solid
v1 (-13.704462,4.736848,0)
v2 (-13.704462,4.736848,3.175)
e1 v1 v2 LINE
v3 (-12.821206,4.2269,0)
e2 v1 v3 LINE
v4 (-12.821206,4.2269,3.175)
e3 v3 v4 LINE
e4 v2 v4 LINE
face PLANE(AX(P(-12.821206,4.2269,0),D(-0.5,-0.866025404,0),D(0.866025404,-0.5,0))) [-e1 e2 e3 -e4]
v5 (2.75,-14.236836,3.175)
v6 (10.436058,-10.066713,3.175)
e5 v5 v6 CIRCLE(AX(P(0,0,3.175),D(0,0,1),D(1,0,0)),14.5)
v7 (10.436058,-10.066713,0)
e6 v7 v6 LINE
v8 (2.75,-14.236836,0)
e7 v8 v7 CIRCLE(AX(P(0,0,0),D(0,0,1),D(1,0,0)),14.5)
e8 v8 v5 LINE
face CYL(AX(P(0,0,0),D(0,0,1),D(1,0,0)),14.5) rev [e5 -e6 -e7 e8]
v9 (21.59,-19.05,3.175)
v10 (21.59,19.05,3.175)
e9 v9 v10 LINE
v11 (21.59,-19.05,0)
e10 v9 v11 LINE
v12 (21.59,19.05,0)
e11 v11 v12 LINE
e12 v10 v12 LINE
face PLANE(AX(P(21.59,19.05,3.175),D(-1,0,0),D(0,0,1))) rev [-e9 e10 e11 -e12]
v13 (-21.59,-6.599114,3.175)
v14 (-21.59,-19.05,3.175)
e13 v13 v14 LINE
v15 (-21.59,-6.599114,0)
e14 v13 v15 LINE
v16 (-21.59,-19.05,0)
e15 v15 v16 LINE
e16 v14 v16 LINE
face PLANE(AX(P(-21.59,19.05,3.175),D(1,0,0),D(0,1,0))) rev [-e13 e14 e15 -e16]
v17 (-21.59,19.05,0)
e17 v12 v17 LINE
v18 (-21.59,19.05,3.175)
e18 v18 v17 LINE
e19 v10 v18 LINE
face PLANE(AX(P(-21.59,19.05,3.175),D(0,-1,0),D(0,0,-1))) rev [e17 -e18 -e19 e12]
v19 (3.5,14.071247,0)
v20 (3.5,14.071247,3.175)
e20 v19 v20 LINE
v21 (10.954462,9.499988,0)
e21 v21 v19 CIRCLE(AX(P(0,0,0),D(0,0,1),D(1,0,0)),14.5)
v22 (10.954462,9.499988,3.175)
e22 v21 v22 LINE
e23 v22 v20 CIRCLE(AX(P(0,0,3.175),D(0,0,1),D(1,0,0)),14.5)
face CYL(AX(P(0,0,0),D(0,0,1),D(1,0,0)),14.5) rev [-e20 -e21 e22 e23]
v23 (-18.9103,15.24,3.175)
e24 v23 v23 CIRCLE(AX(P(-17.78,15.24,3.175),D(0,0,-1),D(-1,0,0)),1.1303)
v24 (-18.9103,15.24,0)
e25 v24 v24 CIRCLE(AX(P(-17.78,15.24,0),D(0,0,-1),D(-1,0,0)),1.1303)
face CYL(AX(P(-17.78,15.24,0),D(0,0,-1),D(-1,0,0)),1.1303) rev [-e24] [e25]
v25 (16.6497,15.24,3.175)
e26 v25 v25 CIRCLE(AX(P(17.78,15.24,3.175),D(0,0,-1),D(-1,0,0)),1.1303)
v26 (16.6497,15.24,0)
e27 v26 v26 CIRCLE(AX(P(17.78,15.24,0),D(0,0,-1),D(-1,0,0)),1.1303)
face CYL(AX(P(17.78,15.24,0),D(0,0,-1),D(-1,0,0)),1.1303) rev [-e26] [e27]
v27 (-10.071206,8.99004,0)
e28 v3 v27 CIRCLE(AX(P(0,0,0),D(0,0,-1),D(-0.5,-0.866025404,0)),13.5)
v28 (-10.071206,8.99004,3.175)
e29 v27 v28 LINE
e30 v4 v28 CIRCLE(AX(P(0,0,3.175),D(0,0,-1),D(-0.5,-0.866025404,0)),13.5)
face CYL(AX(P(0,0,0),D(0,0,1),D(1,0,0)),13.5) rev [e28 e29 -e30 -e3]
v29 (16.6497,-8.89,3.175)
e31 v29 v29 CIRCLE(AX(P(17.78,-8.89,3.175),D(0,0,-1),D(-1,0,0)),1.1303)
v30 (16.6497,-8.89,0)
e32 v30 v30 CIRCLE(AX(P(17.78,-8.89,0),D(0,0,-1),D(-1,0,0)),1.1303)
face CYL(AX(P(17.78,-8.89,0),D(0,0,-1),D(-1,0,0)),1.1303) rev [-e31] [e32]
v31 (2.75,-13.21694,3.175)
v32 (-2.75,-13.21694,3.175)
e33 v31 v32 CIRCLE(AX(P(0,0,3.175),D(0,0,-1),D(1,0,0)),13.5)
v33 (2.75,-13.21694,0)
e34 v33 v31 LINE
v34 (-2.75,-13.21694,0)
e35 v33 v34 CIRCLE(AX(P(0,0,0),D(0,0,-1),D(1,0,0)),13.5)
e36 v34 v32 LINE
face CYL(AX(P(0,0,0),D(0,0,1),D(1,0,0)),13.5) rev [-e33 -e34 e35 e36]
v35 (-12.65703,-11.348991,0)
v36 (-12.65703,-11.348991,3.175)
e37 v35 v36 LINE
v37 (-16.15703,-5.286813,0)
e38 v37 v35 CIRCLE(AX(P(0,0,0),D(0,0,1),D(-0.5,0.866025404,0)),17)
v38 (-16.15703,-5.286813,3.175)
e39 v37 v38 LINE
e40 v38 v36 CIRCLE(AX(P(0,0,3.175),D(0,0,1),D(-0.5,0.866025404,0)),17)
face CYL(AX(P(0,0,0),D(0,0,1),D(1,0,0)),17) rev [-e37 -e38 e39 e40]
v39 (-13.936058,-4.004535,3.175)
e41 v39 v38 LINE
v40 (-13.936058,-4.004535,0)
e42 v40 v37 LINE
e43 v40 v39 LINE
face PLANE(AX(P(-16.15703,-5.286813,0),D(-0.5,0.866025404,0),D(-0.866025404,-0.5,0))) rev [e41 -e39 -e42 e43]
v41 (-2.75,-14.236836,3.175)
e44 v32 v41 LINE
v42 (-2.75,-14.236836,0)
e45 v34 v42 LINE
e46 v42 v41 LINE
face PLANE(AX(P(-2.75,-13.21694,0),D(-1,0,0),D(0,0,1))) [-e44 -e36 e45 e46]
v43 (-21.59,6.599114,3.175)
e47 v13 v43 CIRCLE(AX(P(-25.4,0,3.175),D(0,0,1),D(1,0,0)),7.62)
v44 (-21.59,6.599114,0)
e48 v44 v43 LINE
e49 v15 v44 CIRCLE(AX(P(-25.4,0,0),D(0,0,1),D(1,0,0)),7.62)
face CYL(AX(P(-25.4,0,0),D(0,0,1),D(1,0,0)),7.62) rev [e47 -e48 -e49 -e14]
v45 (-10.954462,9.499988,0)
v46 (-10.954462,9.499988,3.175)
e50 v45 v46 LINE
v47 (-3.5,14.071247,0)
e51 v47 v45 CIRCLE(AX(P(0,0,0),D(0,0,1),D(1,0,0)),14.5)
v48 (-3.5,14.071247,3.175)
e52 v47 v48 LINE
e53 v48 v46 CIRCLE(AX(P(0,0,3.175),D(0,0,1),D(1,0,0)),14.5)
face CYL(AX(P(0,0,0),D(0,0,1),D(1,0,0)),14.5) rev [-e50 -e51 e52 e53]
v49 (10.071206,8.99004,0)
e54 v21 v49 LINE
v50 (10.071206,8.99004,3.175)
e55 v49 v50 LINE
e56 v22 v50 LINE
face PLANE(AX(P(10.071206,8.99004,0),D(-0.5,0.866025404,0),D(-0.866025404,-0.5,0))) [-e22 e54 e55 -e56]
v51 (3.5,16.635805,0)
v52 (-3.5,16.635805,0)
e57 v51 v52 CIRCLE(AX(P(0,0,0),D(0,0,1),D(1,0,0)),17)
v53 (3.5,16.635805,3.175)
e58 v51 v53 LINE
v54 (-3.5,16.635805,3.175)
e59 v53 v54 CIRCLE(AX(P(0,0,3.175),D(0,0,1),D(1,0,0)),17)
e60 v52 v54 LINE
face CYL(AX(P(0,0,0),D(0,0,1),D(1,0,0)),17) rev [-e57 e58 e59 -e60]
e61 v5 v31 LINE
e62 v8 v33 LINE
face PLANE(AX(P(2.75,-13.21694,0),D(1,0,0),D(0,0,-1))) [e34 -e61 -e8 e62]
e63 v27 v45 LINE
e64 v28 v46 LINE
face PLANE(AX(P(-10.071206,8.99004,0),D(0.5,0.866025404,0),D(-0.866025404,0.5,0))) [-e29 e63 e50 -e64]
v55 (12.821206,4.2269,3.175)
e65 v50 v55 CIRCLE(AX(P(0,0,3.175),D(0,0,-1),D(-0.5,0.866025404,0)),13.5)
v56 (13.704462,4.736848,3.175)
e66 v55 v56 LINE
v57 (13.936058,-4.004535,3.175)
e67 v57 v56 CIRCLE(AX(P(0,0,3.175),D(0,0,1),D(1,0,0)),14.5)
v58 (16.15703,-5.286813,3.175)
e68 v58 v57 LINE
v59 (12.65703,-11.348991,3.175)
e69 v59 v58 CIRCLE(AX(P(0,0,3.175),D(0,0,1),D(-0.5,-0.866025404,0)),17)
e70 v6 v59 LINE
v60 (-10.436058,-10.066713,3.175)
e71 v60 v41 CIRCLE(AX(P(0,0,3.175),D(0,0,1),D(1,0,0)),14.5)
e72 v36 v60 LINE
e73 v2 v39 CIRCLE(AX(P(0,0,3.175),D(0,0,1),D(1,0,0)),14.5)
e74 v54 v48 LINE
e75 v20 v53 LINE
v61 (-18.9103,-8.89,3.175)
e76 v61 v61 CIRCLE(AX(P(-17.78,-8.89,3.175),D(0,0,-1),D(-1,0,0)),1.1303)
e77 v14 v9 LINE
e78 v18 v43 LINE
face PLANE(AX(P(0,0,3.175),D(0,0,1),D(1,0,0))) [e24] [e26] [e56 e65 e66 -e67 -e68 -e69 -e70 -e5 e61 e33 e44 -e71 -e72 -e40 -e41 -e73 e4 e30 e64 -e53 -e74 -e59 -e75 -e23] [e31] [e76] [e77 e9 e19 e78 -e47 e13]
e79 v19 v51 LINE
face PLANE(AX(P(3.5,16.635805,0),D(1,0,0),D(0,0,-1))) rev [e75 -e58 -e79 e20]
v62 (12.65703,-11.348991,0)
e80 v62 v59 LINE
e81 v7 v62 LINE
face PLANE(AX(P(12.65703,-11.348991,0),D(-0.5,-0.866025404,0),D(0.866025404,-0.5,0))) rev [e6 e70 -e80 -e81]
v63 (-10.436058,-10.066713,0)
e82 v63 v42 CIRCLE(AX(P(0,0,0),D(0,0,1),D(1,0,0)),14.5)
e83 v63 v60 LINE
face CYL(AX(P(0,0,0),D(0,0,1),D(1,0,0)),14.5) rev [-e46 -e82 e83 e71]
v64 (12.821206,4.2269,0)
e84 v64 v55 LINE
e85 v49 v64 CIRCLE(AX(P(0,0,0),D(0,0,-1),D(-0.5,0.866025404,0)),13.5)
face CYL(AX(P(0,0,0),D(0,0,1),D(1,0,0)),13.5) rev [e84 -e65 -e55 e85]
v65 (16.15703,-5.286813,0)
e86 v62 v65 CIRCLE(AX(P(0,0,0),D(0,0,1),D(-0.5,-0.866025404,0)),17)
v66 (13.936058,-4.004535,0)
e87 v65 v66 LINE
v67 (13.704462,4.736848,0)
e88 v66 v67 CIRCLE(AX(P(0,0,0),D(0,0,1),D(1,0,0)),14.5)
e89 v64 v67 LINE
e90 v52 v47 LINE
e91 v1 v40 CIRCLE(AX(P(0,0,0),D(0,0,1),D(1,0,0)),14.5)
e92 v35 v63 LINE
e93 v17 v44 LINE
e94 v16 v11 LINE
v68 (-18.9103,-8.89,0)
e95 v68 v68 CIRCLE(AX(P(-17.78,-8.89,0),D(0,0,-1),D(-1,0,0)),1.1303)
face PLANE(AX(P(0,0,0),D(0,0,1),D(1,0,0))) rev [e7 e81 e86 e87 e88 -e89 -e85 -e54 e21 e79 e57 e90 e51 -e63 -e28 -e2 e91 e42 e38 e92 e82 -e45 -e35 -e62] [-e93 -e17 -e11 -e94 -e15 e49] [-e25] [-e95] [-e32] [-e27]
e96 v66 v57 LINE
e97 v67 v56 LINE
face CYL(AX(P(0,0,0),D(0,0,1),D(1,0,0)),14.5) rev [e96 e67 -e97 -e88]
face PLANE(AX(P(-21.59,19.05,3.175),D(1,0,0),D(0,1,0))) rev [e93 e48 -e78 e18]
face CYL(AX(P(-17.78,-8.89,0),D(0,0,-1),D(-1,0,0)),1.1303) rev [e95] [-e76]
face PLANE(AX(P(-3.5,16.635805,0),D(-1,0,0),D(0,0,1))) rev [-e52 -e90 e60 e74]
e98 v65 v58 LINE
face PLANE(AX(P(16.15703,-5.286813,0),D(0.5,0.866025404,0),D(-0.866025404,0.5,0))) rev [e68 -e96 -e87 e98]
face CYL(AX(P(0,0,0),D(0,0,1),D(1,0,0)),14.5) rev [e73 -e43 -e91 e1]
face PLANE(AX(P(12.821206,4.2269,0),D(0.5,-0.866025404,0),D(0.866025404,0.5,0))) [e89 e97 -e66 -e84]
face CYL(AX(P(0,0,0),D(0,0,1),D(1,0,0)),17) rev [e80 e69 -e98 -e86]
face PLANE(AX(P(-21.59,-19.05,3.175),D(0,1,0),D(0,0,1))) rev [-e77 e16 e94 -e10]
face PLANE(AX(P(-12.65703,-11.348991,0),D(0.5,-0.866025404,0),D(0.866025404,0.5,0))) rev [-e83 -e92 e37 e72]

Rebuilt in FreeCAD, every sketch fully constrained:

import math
import FreeCAD as App
import Part
import Sketcher
from FreeCAD import Vector
Q = App.Units.Quantity


def add_polygon(sketch, points):
    """Adds a closed chain of lines whose ends are joined by coincident constraints."""
    first, n = sketch.GeometryCount, len(points)
    for a, b in zip(points, points[1:] + points[:1]):
        sketch.addGeometry(Part.LineSegment(App.Vector(*a, 0), App.Vector(*b, 0)), False)
    for i in range(n):
        sketch.addConstraint(Sketcher.Constraint("Coincident", first + i, 2, first + (i + 1) % n, 1))

doc = App.newDocument("Part")
body = doc.addObject("PartDesign::Body", "Body")

sketch1 = doc.addObject("Sketcher::SketchObject", "Sketch")
body.addObject(sketch1)
sketch1.AttachmentSupport = (doc.XY_Plane, [""])
sketch1.MapMode = "FlatFace"
add_polygon(sketch1, [(-22, 19), (-22, -19), (22, -19), (22, 19)])
sketch1.addConstraint(Sketcher.Constraint("Vertical", 0))
sketch1.addConstraint(Sketcher.Constraint("Horizontal", 1))
sketch1.addConstraint(Sketcher.Constraint("Vertical", 2))
sketch1.addConstraint(Sketcher.Constraint("Horizontal", 3))
sketch1.addConstraint(Sketcher.Constraint("Symmetric", 0, 2, 2, 2, -1, 1))
sketch1.addConstraint(Sketcher.Constraint("DistanceX", 1, 1, 1, 2, Q("1.7 in")))
sketch1.addConstraint(Sketcher.Constraint("DistanceY", 0, 2, 0, 1, Q("1.5 in")))
pad1 = doc.addObject("PartDesign::Pad", "Pad")
body.addObject(pad1)
pad1.Profile = sketch1
pad1.Length = Q("0.125 in")

sketch2 = doc.addObject("Sketcher::SketchObject", "Sketch001")
body.addObject(sketch2)
sketch2.AttachmentSupport = (doc.XY_Plane, [""])
sketch2.MapMode = "FlatFace"
sketch2.AttachmentOffset = App.Placement(Vector(0, 0, 0.125 * 25.4), App.Rotation())
sketch2.addGeometry(Part.Circle(Vector(0, 0, 0), Vector(0, 0, 1), 14), False)
sketch2.addConstraint(Sketcher.Constraint("Coincident", 0, 3, -1, 1))
sketch2.addConstraint(Sketcher.Constraint("Diameter", 0, Q("29 mm")))
pocket1 = doc.addObject("PartDesign::Pocket", "Pocket")
body.addObject(pocket1)
pocket1.Profile = sketch2
pocket1.Type = "ThroughAll"

sketch3 = doc.addObject("Sketcher::SketchObject", "Sketch002")
body.addObject(sketch3)
sketch3.AttachmentSupport = (doc.XY_Plane, [""])
sketch3.MapMode = "FlatFace"
sketch3.AttachmentOffset = App.Placement(Vector(0, 0, 0.125 * 25.4), App.Rotation())
sketch3.addGeometry(Part.LineSegment(Vector(-3.5, 16.6, 0), Vector(-3.5, 14.1, 0)), False)
sketch3.addGeometry(Part.ArcOfCircle(Part.Circle(Vector(0, 0, 0), Vector(0, 0, 1), 14.5), math.radians(76), math.radians(104)), False)
sketch3.addGeometry(Part.LineSegment(Vector(3.5, 14.1, 0), Vector(3.5, 16.6, 0)), False)
sketch3.addGeometry(Part.ArcOfCircle(Part.Circle(Vector(0, 0, 0), Vector(0, 0, 1), 17), math.radians(78), math.radians(102)), False)
sketch3.addConstraint(Sketcher.Constraint("Coincident", 0, 2, 1, 2))
sketch3.addConstraint(Sketcher.Constraint("Coincident", 1, 1, 2, 1))
sketch3.addConstraint(Sketcher.Constraint("Coincident", 2, 2, 3, 1))
sketch3.addConstraint(Sketcher.Constraint("Coincident", 3, 2, 0, 1))
sketch3.addConstraint(Sketcher.Constraint("Vertical", 0))
sketch3.addConstraint(Sketcher.Constraint("Vertical", 2))
sketch3.addConstraint(Sketcher.Constraint("Coincident", 1, 3, -1, 1))
sketch3.addConstraint(Sketcher.Constraint("Coincident", 3, 3, -1, 1))
sketch3.addConstraint(Sketcher.Constraint("Horizontal", 0, 2, 1, 1))
sketch3.addConstraint(Sketcher.Constraint("Radius", 1, Q("14.5 mm")))
sketch3.addConstraint(Sketcher.Constraint("Radius", 3, Q("17 mm")))
sketch3.addConstraint(Sketcher.Constraint("DistanceX", 0, 2, -1, 1, Q("3.5 mm")))
pocket2 = doc.addObject("PartDesign::Pocket", "Pocket001")
body.addObject(pocket2)
pocket2.Profile = sketch3
pocket2.Type = "ThroughAll"
doc.recompute()

polarpattern = doc.addObject("PartDesign::PolarPattern", "PolarPattern")
body.addObject(polarpattern)
polarpattern.Originals = [pocket2]
polarpattern.Axis = (doc.Z_Axis, [""])
polarpattern.Angle = 360
polarpattern.Occurrences = 3
body.Tip = polarpattern

sketch4 = doc.addObject("Sketcher::SketchObject", "Sketch003")
body.addObject(sketch4)
sketch4.AttachmentSupport = (doc.XY_Plane, [""])
sketch4.MapMode = "FlatFace"
sketch4.AttachmentOffset = App.Placement(Vector(0, 0, 0.125 * 25.4), App.Rotation())
sketch4.addGeometry(Part.LineSegment(Vector(-2.8, -13.2, 0), Vector(-2.8, -14.2, 0)), False)
sketch4.addGeometry(Part.ArcOfCircle(Part.Circle(Vector(0, 0, 0), Vector(0, 0, 1), 14.5), math.radians(-101), math.radians(-79)), False)
sketch4.addGeometry(Part.LineSegment(Vector(2.8, -14.2, 0), Vector(2.8, -13.2, 0)), False)
sketch4.addGeometry(Part.ArcOfCircle(Part.Circle(Vector(0, 0, 0), Vector(0, 0, 1), 13.5), math.radians(-102), math.radians(-78)), False)
sketch4.addConstraint(Sketcher.Constraint("Coincident", 0, 2, 1, 1))
sketch4.addConstraint(Sketcher.Constraint("Coincident", 1, 2, 2, 1))
sketch4.addConstraint(Sketcher.Constraint("Coincident", 2, 2, 3, 2))
sketch4.addConstraint(Sketcher.Constraint("Coincident", 3, 1, 0, 1))
sketch4.addConstraint(Sketcher.Constraint("Vertical", 0))
sketch4.addConstraint(Sketcher.Constraint("Vertical", 2))
sketch4.addConstraint(Sketcher.Constraint("Coincident", 1, 3, -1, 1))
sketch4.addConstraint(Sketcher.Constraint("Coincident", 3, 3, -1, 1))
sketch4.addConstraint(Sketcher.Constraint("Horizontal", 0, 2, 1, 2))
sketch4.addConstraint(Sketcher.Constraint("Radius", 1, Q("14.5 mm")))
sketch4.addConstraint(Sketcher.Constraint("Radius", 3, Q("13.5 mm")))
sketch4.addConstraint(Sketcher.Constraint("DistanceX", 0, 2, -1, 1, Q("2.75 mm")))
pad2 = doc.addObject("PartDesign::Pad", "Pad001")
body.addObject(pad2)
pad2.Profile = sketch4
pad2.Length = Q("0.125 in")
pad2.Reversed = True
doc.recompute()

polarpattern2 = doc.addObject("PartDesign::PolarPattern", "PolarPattern001")
body.addObject(polarpattern2)
polarpattern2.Originals = [pad2]
polarpattern2.Axis = (doc.Z_Axis, [""])
polarpattern2.Angle = 360
polarpattern2.Occurrences = 3
body.Tip = polarpattern2

sketch5 = doc.addObject("Sketcher::SketchObject", "Sketch004")
body.addObject(sketch5)
sketch5.AttachmentSupport = (doc.XY_Plane, [""])
sketch5.MapMode = "FlatFace"
sketch5.AttachmentOffset = App.Placement(Vector(0, 0, 0.125 * 25.4), App.Rotation())
sketch5.addGeometry(Part.Circle(Vector(-25, 0, 0), Vector(0, 0, 1), 8), False)
sketch5.addConstraint(Sketcher.Constraint("PointOnObject", 0, 3, -1))
sketch5.addConstraint(Sketcher.Constraint("Diameter", 0, Q("0.6 in")))
sketch5.addConstraint(Sketcher.Constraint("DistanceX", 0, 3, -1, 1, Q("1 in")))
pocket3 = doc.addObject("PartDesign::Pocket", "Pocket002")
body.addObject(pocket3)
pocket3.Profile = sketch5
pocket3.Type = "ThroughAll"

sketch6 = doc.addObject("Sketcher::SketchObject", "Sketch005")
body.addObject(sketch6)
sketch6.AttachmentSupport = (doc.XY_Plane, [""])
sketch6.MapMode = "FlatFace"
sketch6.addGeometry(Part.Circle(Vector(17.8, 15.2, 0), Vector(0, 0, 1), 1.1), False)
sketch6.addGeometry(Part.Circle(Vector(17.8, -8.9, 0), Vector(0, 0, 1), 1.1), False)
sketch6.addGeometry(Part.Circle(Vector(-17.8, -8.9, 0), Vector(0, 0, 1), 1.1), False)
sketch6.addGeometry(Part.Circle(Vector(-17.8, 15.2, 0), Vector(0, 0, 1), 1.1), False)
sketch6.addConstraint(Sketcher.Constraint("Equal", 0, 1))
sketch6.addConstraint(Sketcher.Constraint("Equal", 1, 2))
sketch6.addConstraint(Sketcher.Constraint("Equal", 2, 3))
sketch6.addConstraint(Sketcher.Constraint("Symmetric", 1, 3, 2, 3, -2))
sketch6.addConstraint(Sketcher.Constraint("Symmetric", 0, 3, 3, 3, -2))
sketch6.addConstraint(Sketcher.Constraint("Vertical", 0, 3, 1, 3))
sketch6.addConstraint(Sketcher.Constraint("Diameter", 0, Q("0.089 in")))
sketch6.addConstraint(Sketcher.Constraint("DistanceX", -1, 1, 0, 3, Q("0.7 in")))
sketch6.addConstraint(Sketcher.Constraint("DistanceY", -1, 1, 0, 3, Q("0.6 in")))
sketch6.addConstraint(Sketcher.Constraint("DistanceY", 1, 3, -1, 1, Q("0.35 in")))
doc.recompute()
hole = doc.addObject("PartDesign::Hole", "Hole")
body.addObject(hole)
hole.Profile = sketch6
hole.ThreadType = "None"
hole.Diameter = Q("0.089 in")
hole.DepthType = "ThroughAll"
hole.Reversed = True

doc.recompute()
